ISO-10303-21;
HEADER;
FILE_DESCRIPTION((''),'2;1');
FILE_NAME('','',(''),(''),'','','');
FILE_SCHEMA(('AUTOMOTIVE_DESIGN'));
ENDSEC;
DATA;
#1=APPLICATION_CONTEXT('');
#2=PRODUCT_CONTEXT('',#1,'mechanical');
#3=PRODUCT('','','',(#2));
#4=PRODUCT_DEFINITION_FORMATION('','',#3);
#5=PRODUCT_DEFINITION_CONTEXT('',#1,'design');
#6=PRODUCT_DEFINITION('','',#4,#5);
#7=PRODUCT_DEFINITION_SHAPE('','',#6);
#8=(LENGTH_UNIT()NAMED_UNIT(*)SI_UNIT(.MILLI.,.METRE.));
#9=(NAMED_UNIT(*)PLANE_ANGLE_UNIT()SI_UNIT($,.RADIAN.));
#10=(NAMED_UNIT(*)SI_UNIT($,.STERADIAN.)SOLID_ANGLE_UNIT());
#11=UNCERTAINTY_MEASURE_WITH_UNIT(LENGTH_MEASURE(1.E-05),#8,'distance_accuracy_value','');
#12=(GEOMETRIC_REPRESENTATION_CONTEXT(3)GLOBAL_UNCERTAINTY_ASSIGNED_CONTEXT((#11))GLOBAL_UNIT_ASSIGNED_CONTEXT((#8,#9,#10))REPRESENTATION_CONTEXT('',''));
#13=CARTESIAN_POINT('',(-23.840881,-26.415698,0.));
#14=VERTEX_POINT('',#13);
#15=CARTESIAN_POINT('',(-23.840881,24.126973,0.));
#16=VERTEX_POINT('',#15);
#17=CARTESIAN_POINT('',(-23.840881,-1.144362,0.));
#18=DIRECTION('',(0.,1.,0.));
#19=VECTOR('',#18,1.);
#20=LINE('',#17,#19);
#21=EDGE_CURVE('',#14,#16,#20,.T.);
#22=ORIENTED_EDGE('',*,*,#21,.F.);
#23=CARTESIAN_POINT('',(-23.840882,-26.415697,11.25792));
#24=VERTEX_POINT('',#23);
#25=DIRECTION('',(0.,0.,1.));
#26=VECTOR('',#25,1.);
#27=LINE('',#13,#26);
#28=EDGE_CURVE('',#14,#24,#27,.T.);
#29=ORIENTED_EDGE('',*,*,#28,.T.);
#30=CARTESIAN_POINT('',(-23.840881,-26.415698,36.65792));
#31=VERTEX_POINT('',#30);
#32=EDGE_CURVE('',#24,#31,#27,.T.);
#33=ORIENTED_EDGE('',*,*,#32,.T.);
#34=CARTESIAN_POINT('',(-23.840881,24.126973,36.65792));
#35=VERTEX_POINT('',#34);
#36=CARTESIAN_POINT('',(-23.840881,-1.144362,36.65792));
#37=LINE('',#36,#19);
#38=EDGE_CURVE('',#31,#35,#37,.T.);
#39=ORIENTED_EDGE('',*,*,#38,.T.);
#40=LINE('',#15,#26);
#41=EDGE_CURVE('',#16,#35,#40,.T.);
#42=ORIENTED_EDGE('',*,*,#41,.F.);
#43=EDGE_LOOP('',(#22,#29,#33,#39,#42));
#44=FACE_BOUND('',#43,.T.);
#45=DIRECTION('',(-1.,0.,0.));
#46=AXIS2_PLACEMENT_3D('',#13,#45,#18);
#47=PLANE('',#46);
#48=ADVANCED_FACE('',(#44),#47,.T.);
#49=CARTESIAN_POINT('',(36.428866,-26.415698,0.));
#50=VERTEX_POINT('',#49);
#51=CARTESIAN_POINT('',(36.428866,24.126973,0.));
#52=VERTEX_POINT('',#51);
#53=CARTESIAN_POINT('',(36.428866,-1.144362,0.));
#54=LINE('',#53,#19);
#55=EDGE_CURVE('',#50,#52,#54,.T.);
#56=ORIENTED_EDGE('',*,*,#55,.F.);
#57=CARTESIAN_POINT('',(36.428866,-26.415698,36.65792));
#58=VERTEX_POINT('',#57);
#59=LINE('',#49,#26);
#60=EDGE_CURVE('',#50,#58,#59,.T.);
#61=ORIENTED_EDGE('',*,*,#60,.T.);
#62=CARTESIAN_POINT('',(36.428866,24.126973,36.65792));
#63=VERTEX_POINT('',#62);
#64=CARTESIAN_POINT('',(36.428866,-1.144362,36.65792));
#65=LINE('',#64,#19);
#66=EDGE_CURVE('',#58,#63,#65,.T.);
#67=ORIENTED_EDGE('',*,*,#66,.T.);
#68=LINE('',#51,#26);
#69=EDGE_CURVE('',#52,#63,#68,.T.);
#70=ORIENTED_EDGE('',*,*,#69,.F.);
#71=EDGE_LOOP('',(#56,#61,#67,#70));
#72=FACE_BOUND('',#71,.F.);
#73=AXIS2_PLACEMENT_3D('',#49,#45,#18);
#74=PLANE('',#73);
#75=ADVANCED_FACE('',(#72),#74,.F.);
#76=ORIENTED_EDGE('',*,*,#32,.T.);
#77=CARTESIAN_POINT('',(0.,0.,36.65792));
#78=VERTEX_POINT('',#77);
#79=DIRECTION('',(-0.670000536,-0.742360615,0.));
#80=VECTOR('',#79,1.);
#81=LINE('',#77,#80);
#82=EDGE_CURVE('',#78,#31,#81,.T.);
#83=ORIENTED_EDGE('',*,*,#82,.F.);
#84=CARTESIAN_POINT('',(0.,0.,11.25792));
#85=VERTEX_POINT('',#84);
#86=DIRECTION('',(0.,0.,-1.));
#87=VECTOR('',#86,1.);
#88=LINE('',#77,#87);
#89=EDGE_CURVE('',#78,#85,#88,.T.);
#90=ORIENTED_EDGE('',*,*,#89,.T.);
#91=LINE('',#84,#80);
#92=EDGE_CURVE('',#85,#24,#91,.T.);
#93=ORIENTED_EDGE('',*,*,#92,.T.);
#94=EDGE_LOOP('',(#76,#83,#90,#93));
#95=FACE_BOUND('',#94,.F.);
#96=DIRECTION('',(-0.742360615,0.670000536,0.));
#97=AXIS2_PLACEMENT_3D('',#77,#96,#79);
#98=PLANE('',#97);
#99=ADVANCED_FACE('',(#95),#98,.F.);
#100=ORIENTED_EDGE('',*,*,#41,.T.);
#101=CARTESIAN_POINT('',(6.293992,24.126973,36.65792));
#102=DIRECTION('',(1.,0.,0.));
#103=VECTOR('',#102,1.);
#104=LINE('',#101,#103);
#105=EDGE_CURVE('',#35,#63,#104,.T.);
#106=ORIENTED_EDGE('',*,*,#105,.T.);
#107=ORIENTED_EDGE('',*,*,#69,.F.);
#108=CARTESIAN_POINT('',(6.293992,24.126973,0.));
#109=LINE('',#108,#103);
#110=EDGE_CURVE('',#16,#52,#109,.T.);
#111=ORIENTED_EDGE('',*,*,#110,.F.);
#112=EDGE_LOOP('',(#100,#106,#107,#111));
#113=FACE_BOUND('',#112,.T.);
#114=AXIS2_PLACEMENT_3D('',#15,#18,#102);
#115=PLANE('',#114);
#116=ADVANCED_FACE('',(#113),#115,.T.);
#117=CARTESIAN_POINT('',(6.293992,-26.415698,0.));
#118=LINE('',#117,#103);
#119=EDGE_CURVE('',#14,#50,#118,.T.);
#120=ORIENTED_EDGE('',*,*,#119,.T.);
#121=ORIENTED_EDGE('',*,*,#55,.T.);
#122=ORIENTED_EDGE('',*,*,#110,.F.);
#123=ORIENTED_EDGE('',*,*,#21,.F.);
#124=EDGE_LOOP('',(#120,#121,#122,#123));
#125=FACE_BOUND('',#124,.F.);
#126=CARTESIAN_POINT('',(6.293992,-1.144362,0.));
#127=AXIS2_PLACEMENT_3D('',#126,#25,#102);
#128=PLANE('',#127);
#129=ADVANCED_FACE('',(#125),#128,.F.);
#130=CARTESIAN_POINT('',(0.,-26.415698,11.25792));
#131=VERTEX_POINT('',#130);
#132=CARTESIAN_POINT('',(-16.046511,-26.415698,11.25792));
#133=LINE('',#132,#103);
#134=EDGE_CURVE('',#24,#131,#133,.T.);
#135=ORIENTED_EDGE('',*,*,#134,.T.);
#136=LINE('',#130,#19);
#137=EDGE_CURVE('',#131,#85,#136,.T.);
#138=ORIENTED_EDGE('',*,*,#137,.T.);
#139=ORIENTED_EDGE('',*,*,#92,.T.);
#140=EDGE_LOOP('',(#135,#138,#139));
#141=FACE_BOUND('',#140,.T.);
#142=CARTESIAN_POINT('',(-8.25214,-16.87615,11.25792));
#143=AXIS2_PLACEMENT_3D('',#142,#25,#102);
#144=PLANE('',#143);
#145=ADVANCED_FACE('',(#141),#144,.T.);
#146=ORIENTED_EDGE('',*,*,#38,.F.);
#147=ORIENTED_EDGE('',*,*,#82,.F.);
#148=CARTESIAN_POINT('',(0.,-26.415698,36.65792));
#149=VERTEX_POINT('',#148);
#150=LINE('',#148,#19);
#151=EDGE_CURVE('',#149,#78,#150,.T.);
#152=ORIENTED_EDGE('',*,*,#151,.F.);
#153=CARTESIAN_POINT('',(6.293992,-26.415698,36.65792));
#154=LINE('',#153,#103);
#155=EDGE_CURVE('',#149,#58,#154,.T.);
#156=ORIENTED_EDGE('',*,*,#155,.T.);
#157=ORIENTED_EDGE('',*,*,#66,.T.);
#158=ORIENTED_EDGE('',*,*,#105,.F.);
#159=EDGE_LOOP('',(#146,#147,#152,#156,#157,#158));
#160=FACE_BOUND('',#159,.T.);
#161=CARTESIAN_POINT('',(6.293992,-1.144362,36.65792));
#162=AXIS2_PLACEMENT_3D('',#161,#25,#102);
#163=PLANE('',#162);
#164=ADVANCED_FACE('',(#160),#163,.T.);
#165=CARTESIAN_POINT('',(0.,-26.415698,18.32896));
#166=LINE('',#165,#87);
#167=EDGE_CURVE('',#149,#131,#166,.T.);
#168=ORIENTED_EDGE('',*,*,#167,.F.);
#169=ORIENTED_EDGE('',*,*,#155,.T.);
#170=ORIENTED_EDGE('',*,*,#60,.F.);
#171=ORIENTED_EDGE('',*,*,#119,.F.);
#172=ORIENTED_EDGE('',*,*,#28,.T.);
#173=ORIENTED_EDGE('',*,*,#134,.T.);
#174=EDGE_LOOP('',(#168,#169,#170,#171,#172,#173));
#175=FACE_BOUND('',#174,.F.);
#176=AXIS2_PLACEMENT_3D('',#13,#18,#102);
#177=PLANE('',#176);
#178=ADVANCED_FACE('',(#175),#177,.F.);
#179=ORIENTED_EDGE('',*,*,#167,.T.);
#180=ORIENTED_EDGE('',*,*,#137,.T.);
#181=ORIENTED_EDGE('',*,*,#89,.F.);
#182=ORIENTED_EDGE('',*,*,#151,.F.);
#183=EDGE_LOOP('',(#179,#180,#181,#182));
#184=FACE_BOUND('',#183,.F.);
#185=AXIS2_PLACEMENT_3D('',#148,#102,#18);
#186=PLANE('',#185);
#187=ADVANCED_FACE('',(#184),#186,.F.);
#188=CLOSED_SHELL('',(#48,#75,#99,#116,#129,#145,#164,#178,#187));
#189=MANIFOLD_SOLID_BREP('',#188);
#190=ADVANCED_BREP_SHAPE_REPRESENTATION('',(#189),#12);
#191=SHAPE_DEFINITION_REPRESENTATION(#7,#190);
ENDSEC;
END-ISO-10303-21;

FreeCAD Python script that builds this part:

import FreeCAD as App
import Part
import Sketcher
from FreeCAD import Vector

doc = App.newDocument("Part")
params = doc.addObject("Spreadsheet::Sheet", "Params")
for row, (alias, value) in enumerate([
    ("pad1_length", "36.65792 mm"),
    ("pocket1_length", "1 in"),
], start=1):
    params.set(f"A{row}", alias)
    params.set(f"B{row}", "=" + value)
    params.setAlias(f"B{row}", alias)

body = doc.addObject("PartDesign::Body", "Body")

sketch1 = doc.addObject("Sketcher::SketchObject", "Sketch")
body.addObject(sketch1)
sketch1.AttachmentSupport = (doc.XY_Plane, [""])
sketch1.MapMode = "FlatFace"
sketch1.addGeometry([
    Part.LineSegment(Vector(-24, 24, 0), Vector(-24, -26, 0)),
    Part.LineSegment(Vector(-24, -26, 0), Vector(36, -26, 0)),
    Part.LineSegment(Vector(36, -26, 0), Vector(36, 24, 0)),
    Part.LineSegment(Vector(36, 24, 0), Vector(-24, 24, 0)),
], False)
sketch1.addConstraint([
    Sketcher.Constraint("Coincident", 0, 2, 1, 1),
    Sketcher.Constraint("Coincident", 1, 2, 2, 1),
    Sketcher.Constraint("Coincident", 2, 2, 3, 1),
    Sketcher.Constraint("Coincident", 3, 2, 0, 1),
    Sketcher.Constraint("Vertical", 0),
    Sketcher.Constraint("Horizontal", 1),
    Sketcher.Constraint("Vertical", 2),
    Sketcher.Constraint("Horizontal", 3),
    Sketcher.Constraint("DistanceY", 0, 2, 0, 1, 50.542671),
    Sketcher.Constraint("DistanceX", 1, 1, 1, 2, 60.269747),
    Sketcher.Constraint("DistanceX", 0, 2, -1, 1, 23.840881),
    Sketcher.Constraint("DistanceY", 0, 2, -1, 1, 26.415698),
])
pad1 = doc.addObject("PartDesign::Pad", "Pad")
body.addObject(pad1)
pad1.Profile = sketch1
pad1.setExpression("Length", "Params.pad1_length")

sketch2 = doc.addObject("Sketcher::SketchObject", "Sketch001")
body.addObject(sketch2)
sketch2.AttachmentSupport = (doc.XY_Plane, [""])
sketch2.MapMode = "FlatFace"
sketch2.AttachmentOffset = App.Placement(Vector(0, 0, 36.65792), App.Rotation())
sketch2.addGeometry([
    Part.LineSegment(Vector(0, 0, 0), Vector(-24, -26, 0)),
    Part.LineSegment(Vector(-24, -26, 0), Vector(0, -26, 0)),
    Part.LineSegment(Vector(0, -26, 0), Vector(0, 0, 0)),
], False)
sketch2.addConstraint([
    Sketcher.Constraint("Coincident", 0, 2, 1, 1),
    Sketcher.Constraint("Coincident", 1, 2, 2, 1),
    Sketcher.Constraint("Coincident", 2, 2, 0, 1),
    Sketcher.Constraint("Horizontal", 1),
    Sketcher.Constraint("Vertical", 2),
    Sketcher.Constraint("Coincident", 2, 2, -1, 1),
    Sketcher.Constraint("DistanceX", 1, 1, 1, 2, 23.840882),
    Sketcher.Constraint("DistanceY", 2, 1, 2, 2, 26.415698),
])
pocket1 = doc.addObject("PartDesign::Pocket", "Pocket")
body.addObject(pocket1)
pocket1.Profile = sketch2
pocket1.setExpression("Length", "Params.pocket1_length")

doc.recompute()
